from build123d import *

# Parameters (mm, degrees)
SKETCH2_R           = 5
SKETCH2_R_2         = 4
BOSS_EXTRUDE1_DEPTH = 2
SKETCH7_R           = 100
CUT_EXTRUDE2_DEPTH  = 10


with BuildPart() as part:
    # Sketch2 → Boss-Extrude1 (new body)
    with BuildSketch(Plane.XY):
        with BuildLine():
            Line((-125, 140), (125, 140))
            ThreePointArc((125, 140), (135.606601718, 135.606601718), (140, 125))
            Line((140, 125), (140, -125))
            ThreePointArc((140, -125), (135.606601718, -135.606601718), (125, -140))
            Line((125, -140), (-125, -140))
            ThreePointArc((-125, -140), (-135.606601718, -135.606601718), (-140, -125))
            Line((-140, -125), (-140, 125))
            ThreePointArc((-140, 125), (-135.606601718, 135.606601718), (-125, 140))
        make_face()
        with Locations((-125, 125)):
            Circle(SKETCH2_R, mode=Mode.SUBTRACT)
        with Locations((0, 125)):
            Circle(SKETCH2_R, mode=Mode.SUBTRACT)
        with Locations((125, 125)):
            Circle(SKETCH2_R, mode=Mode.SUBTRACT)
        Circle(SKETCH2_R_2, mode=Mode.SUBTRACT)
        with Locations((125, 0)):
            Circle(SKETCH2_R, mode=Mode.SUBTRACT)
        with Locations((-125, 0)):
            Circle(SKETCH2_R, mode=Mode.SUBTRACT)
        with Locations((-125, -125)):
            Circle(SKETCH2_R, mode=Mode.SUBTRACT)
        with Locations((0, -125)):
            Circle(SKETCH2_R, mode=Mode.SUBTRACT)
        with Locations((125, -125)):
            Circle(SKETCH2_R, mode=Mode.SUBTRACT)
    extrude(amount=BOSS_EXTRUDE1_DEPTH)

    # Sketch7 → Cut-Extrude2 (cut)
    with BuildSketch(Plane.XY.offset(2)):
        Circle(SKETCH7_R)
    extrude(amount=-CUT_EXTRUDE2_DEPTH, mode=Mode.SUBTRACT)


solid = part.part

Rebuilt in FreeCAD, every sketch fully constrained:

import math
import FreeCAD as App
import Part
import Sketcher

V = App.Vector
Q = App.Units.Quantity

doc = App.newDocument("Part")
body = doc.addObject("PartDesign::Body", "Body")

sketch1 = body.newObject("Sketcher::SketchObject", "Sketch")
sketch1.AttachmentSupport = (doc.getObject("XY_Plane"), [""])
sketch1.MapMode = "FlatFace"
sketch1.addGeometry([
    Part.LineSegment(V(125, 140, 0), V(-125, 140, 0)),
    Part.ArcOfCircle(Part.Circle(V(-125, 125, 0), V(0, 0, 1), 15), math.radians(90), math.radians(180)),
    Part.LineSegment(V(-140, 125, 0), V(-140, -125, 0)),
    Part.ArcOfCircle(Part.Circle(V(-125, -125, 0), V(0, 0, 1), 15), math.radians(180), math.radians(270)),
    Part.LineSegment(V(-125, -140, 0), V(125, -140, 0)),
    Part.ArcOfCircle(Part.Circle(V(125, -125, 0), V(0, 0, 1), 15), math.radians(-90), math.radians(0)),
    Part.LineSegment(V(140, -125, 0), V(140, 125, 0)),
    Part.ArcOfCircle(Part.Circle(V(125, 125, 0), V(0, 0, 1), 15), math.radians(0), math.radians(90)),
    Part.Circle(V(125, -125, 0), V(0, 0, 1), 5),
    Part.Circle(V(0, -125, 0), V(0, 0, 1), 5),
    Part.Circle(V(-125, -125, 0), V(0, 0, 1), 5),
    Part.Circle(V(125, 0, 0), V(0, 0, 1), 5),
    Part.Circle(V(125, 125, 0), V(0, 0, 1), 5),
    Part.Circle(V(0, 0, 0), V(0, 0, 1), 4),
    Part.Circle(V(-125, 0, 0), V(0, 0, 1), 5),
    Part.Circle(V(0, 125, 0), V(0, 0, 1), 5),
    Part.Circle(V(-125, 125, 0), V(0, 0, 1), 5),
], False)
sketch1.addConstraint([
    Sketcher.Constraint("Tangent", 0, 2, 1, 1),
    Sketcher.Constraint("Tangent", 1, 2, 2, 1),
    Sketcher.Constraint("Tangent", 2, 2, 3, 1),
    Sketcher.Constraint("Tangent", 3, 2, 4, 1),
    Sketcher.Constraint("Tangent", 4, 2, 5, 1),
    Sketcher.Constraint("Tangent", 5, 2, 6, 1),
    Sketcher.Constraint("Tangent", 6, 2, 7, 1),
    Sketcher.Constraint("Tangent", 7, 2, 0, 1),
    Sketcher.Constraint("Horizontal", 0),
    Sketcher.Constraint("Vertical", 2),
    Sketcher.Constraint("Horizontal", 4),
    Sketcher.Constraint("Vertical", 6),
    Sketcher.Constraint("Coincident", 13, 3, -1, 1),
    Sketcher.Constraint("Coincident", 8, 3, 5, 3),
    Sketcher.Constraint("Coincident", 10, 3, 3, 3),
    Sketcher.Constraint("Coincident", 12, 3, 7, 3),
    Sketcher.Constraint("Coincident", 16, 3, 1, 3),
    Sketcher.Constraint("Equal", 1, 3),
    Sketcher.Constraint("Equal", 3, 5),
    Sketcher.Constraint("Equal", 5, 7),
    Sketcher.Constraint("Equal", 8, 9),
    Sketcher.Constraint("Equal", 9, 10),
    Sketcher.Constraint("Equal", 10, 11),
    Sketcher.Constraint("Equal", 11, 12),
    Sketcher.Constraint("Equal", 12, 14),
    Sketcher.Constraint("Equal", 14, 15),
    Sketcher.Constraint("Equal", 15, 16),
    Sketcher.Constraint("Symmetric", 1, 3, 5, 3, -1, 1),
    Sketcher.Constraint("Symmetric", 11, 3, 14, 3, -1, 1),
    Sketcher.Constraint("Symmetric", 9, 3, 15, 3, -1, 1),
    Sketcher.Constraint("PointOnObject", 9, 3, -2),
    Sketcher.Constraint("PointOnObject", 11, 3, -1),
    Sketcher.Constraint("Horizontal", 8, 3, 9, 3),
    Sketcher.Constraint("Vertical", 8, 3, 11, 3),
    Sketcher.Constraint("Equal", 4, 2),
    Sketcher.Constraint("Diameter", 8, Q("10 mm")),
    Sketcher.Constraint("Diameter", 13, Q("8 mm")),
    Sketcher.Constraint("Radius", 1, Q("15 mm")),
    Sketcher.Constraint("DistanceX", 0, 2, 0, 1, Q("250 mm")),
])
pad1 = body.newObject("PartDesign::Pad", "Pad")
pad1.Profile = sketch1
pad1.Length = 2

sketch2 = body.newObject("Sketcher::SketchObject", "Sketch001")
sketch2.AttachmentSupport = (doc.getObject("XY_Plane"), [""])
sketch2.MapMode = "FlatFace"
sketch2.AttachmentOffset = App.Placement(V(0, 0, 2), App.Rotation())
sketch2.addGeometry(Part.Circle(V(0, 0, 0), V(0, 0, 1), 100), False)
sketch2.addConstraint([
    Sketcher.Constraint("Coincident", 0, 3, -1, 1),
    Sketcher.Constraint("Diameter", 0, Q("200 mm")),
])
pocket1 = body.newObject("PartDesign::Pocket", "Pocket")
pocket1.Profile = sketch2
pocket1.Length = 10

doc.recompute()
